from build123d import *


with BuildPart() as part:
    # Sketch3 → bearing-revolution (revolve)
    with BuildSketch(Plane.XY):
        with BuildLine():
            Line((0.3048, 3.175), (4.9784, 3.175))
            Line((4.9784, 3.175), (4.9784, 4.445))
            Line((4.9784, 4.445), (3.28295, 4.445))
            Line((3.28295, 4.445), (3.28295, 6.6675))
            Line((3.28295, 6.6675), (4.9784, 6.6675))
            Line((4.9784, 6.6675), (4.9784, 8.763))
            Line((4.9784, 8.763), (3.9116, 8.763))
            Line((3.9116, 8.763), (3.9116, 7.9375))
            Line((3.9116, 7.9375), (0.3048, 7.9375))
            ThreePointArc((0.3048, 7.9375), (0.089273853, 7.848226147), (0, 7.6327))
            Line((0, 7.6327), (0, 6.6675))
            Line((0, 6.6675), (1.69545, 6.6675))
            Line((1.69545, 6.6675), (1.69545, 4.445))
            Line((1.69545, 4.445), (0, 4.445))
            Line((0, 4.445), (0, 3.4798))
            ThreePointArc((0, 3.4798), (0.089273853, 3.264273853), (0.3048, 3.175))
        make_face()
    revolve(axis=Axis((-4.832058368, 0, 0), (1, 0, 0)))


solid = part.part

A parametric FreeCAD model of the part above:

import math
import FreeCAD as App
import Part
import Sketcher
Q = App.Units.Quantity

doc = App.newDocument("Part")
params = doc.addObject("Spreadsheet::Sheet", "Params")
for row, (alias, value) in enumerate([
    ("sketch1_radius", "0.012 in"),
    ("sketch1_height", "0.05 in"),
    ("sketch1_width", "0.184 in"),
    ("sketch1_width2", "0.042 in"),
    ("revolution_angle", "360 deg"),
], start=1):
    params.set(f"A{row}", alias)
    params.set(f"B{row}", "=" + value)
    params.setAlias(f"B{row}", alias)

body = doc.addObject("PartDesign::Body", "Body")

# Sketch on XY plane
sketch1 = body.newObject("Sketcher::SketchObject", "Sketch")
sketch1.AttachmentSupport = (doc.getObject("XY_Plane"), [""])
sketch1.MapMode = "FlatFace"
sketch1.addGeometry([
    Part.LineSegment(App.Vector(0.3048, 3.175, 0), App.Vector(4.9784, 3.175, 0)),  # 0
    Part.LineSegment(App.Vector(4.9784, 3.175, 0), App.Vector(4.9784, 4.445, 0)),  # 1
    Part.LineSegment(App.Vector(4.9784, 4.445, 0), App.Vector(3.28295, 4.445, 0)),  # 2
    Part.LineSegment(App.Vector(3.28295, 4.445, 0), App.Vector(3.28295, 6.6675, 0)),  # 3
    Part.LineSegment(App.Vector(3.28295, 6.6675, 0), App.Vector(4.9784, 6.6675, 0)),  # 4
    Part.LineSegment(App.Vector(4.9784, 6.6675, 0), App.Vector(4.9784, 8.763, 0)),  # 5
    Part.LineSegment(App.Vector(4.9784, 8.763, 0), App.Vector(3.9116, 8.763, 0)),  # 6
    Part.LineSegment(App.Vector(3.9116, 8.763, 0), App.Vector(3.9116, 7.9375, 0)),  # 7
    Part.LineSegment(App.Vector(3.9116, 7.9375, 0), App.Vector(0.3048, 7.9375, 0)),  # 8
    Part.ArcOfCircle(Part.Circle(App.Vector(0.3048, 7.6327, 0), App.Vector(0, 0, 1), 0.3048), math.radians(90), math.radians(180)),  # 9
    Part.LineSegment(App.Vector(0, 7.6327, 0), App.Vector(0, 6.6675, 0)),  # 10
    Part.LineSegment(App.Vector(0, 6.6675, 0), App.Vector(1.69545, 6.6675, 0)),  # 11
    Part.LineSegment(App.Vector(1.69545, 6.6675, 0), App.Vector(1.69545, 4.445, 0)),  # 12
    Part.LineSegment(App.Vector(1.69545, 4.445, 0), App.Vector(0, 4.445, 0)),  # 13
    Part.LineSegment(App.Vector(0, 4.445, 0), App.Vector(0, 3.4798, 0)),  # 14
    Part.ArcOfCircle(Part.Circle(App.Vector(0.3048, 3.4798, 0), App.Vector(0, 0, 1), 0.3048), math.radians(180), math.radians(270)),  # 15
], False)
sketch1.addConstraint([
    Sketcher.Constraint("Coincident", 0, 2, 1, 1),
    Sketcher.Constraint("Coincident", 1, 2, 2, 1),
    Sketcher.Constraint("Coincident", 2, 2, 3, 1),
    Sketcher.Constraint("Coincident", 3, 2, 4, 1),
    Sketcher.Constraint("Coincident", 4, 2, 5, 1),
    Sketcher.Constraint("Coincident", 5, 2, 6, 1),
    Sketcher.Constraint("Coincident", 6, 2, 7, 1),
    Sketcher.Constraint("Coincident", 7, 2, 8, 1),
    Sketcher.Constraint("Tangent", 8, 2, 9, 1),
    Sketcher.Constraint("Tangent", 9, 2, 10, 1),
    Sketcher.Constraint("Coincident", 10, 2, 11, 1),
    Sketcher.Constraint("Coincident", 11, 2, 12, 1),
    Sketcher.Constraint("Coincident", 12, 2, 13, 1),
    Sketcher.Constraint("Coincident", 13, 2, 14, 1),
    Sketcher.Constraint("Tangent", 14, 2, 15, 1),
    Sketcher.Constraint("Tangent", 15, 2, 0, 1),
    Sketcher.Constraint("Horizontal", 0),
    Sketcher.Constraint("Vertical", 1),
    Sketcher.Constraint("Horizontal", 2),
    Sketcher.Constraint("Vertical", 3),
    Sketcher.Constraint("Horizontal", 4),
    Sketcher.Constraint("Vertical", 5),
    Sketcher.Constraint("Horizontal", 6),
    Sketcher.Constraint("Vertical", 7),
    Sketcher.Constraint("Horizontal", 8),
    Sketcher.Constraint("Vertical", 10),
    Sketcher.Constraint("Horizontal", 11),
    Sketcher.Constraint("Vertical", 12),
    Sketcher.Constraint("Horizontal", 13),
    Sketcher.Constraint("Vertical", 14),
    Sketcher.Constraint("Equal", 9, 15),
    Sketcher.Constraint("PointOnObject", 9, 2, -2),
    Sketcher.Constraint("PointOnObject", 13, 2, -2),
    Sketcher.Constraint("Horizontal", 4, 2, 10, 2),
    Sketcher.Constraint("Horizontal", 2, 2, 12, 2),
    Sketcher.Constraint("Vertical", 1, 2, 4, 2),
    Sketcher.Constraint("Equal", 4, 11),
    Sketcher.Constraint("Equal", 10, 14),
    Sketcher.Constraint("Radius", 9, Q("0.012 in")),
    Sketcher.Constraint("DistanceY", 1, 1, 1, 2, Q("0.05 in")),
    Sketcher.Constraint("DistanceX", 0, 1, 0, 2, Q("0.184 in")),
    Sketcher.Constraint("DistanceX", 6, 2, 6, 1, Q("0.042 in")),
    Sketcher.Constraint("DistanceY", 1, 2, 5, 2, Q("0.17 in")),
    Sketcher.Constraint("DistanceY", 3, 1, 3, 2, Q("0.0875 in")),
    Sketcher.Constraint("DistanceY", -1, 1, 15, 3, Q("0.137 in")),
    Sketcher.Constraint("DistanceX", 11, 2, 3, 2, Q("0.0625 in")),
])
sketch1.setExpression("Constraints[38]", "Params.sketch1_radius")
sketch1.setExpression("Constraints[39]", "Params.sketch1_height")
sketch1.setExpression("Constraints[40]", "Params.sketch1_width")
sketch1.setExpression("Constraints[41]", "Params.sketch1_width2")
revolution = body.newObject("PartDesign::Revolution", "Revolution")
revolution.Profile = sketch1
revolution.ReferenceAxis = (sketch1, ["H_Axis"])
revolution.setExpression("Angle", "Params.revolution_angle")

doc.recompute()
